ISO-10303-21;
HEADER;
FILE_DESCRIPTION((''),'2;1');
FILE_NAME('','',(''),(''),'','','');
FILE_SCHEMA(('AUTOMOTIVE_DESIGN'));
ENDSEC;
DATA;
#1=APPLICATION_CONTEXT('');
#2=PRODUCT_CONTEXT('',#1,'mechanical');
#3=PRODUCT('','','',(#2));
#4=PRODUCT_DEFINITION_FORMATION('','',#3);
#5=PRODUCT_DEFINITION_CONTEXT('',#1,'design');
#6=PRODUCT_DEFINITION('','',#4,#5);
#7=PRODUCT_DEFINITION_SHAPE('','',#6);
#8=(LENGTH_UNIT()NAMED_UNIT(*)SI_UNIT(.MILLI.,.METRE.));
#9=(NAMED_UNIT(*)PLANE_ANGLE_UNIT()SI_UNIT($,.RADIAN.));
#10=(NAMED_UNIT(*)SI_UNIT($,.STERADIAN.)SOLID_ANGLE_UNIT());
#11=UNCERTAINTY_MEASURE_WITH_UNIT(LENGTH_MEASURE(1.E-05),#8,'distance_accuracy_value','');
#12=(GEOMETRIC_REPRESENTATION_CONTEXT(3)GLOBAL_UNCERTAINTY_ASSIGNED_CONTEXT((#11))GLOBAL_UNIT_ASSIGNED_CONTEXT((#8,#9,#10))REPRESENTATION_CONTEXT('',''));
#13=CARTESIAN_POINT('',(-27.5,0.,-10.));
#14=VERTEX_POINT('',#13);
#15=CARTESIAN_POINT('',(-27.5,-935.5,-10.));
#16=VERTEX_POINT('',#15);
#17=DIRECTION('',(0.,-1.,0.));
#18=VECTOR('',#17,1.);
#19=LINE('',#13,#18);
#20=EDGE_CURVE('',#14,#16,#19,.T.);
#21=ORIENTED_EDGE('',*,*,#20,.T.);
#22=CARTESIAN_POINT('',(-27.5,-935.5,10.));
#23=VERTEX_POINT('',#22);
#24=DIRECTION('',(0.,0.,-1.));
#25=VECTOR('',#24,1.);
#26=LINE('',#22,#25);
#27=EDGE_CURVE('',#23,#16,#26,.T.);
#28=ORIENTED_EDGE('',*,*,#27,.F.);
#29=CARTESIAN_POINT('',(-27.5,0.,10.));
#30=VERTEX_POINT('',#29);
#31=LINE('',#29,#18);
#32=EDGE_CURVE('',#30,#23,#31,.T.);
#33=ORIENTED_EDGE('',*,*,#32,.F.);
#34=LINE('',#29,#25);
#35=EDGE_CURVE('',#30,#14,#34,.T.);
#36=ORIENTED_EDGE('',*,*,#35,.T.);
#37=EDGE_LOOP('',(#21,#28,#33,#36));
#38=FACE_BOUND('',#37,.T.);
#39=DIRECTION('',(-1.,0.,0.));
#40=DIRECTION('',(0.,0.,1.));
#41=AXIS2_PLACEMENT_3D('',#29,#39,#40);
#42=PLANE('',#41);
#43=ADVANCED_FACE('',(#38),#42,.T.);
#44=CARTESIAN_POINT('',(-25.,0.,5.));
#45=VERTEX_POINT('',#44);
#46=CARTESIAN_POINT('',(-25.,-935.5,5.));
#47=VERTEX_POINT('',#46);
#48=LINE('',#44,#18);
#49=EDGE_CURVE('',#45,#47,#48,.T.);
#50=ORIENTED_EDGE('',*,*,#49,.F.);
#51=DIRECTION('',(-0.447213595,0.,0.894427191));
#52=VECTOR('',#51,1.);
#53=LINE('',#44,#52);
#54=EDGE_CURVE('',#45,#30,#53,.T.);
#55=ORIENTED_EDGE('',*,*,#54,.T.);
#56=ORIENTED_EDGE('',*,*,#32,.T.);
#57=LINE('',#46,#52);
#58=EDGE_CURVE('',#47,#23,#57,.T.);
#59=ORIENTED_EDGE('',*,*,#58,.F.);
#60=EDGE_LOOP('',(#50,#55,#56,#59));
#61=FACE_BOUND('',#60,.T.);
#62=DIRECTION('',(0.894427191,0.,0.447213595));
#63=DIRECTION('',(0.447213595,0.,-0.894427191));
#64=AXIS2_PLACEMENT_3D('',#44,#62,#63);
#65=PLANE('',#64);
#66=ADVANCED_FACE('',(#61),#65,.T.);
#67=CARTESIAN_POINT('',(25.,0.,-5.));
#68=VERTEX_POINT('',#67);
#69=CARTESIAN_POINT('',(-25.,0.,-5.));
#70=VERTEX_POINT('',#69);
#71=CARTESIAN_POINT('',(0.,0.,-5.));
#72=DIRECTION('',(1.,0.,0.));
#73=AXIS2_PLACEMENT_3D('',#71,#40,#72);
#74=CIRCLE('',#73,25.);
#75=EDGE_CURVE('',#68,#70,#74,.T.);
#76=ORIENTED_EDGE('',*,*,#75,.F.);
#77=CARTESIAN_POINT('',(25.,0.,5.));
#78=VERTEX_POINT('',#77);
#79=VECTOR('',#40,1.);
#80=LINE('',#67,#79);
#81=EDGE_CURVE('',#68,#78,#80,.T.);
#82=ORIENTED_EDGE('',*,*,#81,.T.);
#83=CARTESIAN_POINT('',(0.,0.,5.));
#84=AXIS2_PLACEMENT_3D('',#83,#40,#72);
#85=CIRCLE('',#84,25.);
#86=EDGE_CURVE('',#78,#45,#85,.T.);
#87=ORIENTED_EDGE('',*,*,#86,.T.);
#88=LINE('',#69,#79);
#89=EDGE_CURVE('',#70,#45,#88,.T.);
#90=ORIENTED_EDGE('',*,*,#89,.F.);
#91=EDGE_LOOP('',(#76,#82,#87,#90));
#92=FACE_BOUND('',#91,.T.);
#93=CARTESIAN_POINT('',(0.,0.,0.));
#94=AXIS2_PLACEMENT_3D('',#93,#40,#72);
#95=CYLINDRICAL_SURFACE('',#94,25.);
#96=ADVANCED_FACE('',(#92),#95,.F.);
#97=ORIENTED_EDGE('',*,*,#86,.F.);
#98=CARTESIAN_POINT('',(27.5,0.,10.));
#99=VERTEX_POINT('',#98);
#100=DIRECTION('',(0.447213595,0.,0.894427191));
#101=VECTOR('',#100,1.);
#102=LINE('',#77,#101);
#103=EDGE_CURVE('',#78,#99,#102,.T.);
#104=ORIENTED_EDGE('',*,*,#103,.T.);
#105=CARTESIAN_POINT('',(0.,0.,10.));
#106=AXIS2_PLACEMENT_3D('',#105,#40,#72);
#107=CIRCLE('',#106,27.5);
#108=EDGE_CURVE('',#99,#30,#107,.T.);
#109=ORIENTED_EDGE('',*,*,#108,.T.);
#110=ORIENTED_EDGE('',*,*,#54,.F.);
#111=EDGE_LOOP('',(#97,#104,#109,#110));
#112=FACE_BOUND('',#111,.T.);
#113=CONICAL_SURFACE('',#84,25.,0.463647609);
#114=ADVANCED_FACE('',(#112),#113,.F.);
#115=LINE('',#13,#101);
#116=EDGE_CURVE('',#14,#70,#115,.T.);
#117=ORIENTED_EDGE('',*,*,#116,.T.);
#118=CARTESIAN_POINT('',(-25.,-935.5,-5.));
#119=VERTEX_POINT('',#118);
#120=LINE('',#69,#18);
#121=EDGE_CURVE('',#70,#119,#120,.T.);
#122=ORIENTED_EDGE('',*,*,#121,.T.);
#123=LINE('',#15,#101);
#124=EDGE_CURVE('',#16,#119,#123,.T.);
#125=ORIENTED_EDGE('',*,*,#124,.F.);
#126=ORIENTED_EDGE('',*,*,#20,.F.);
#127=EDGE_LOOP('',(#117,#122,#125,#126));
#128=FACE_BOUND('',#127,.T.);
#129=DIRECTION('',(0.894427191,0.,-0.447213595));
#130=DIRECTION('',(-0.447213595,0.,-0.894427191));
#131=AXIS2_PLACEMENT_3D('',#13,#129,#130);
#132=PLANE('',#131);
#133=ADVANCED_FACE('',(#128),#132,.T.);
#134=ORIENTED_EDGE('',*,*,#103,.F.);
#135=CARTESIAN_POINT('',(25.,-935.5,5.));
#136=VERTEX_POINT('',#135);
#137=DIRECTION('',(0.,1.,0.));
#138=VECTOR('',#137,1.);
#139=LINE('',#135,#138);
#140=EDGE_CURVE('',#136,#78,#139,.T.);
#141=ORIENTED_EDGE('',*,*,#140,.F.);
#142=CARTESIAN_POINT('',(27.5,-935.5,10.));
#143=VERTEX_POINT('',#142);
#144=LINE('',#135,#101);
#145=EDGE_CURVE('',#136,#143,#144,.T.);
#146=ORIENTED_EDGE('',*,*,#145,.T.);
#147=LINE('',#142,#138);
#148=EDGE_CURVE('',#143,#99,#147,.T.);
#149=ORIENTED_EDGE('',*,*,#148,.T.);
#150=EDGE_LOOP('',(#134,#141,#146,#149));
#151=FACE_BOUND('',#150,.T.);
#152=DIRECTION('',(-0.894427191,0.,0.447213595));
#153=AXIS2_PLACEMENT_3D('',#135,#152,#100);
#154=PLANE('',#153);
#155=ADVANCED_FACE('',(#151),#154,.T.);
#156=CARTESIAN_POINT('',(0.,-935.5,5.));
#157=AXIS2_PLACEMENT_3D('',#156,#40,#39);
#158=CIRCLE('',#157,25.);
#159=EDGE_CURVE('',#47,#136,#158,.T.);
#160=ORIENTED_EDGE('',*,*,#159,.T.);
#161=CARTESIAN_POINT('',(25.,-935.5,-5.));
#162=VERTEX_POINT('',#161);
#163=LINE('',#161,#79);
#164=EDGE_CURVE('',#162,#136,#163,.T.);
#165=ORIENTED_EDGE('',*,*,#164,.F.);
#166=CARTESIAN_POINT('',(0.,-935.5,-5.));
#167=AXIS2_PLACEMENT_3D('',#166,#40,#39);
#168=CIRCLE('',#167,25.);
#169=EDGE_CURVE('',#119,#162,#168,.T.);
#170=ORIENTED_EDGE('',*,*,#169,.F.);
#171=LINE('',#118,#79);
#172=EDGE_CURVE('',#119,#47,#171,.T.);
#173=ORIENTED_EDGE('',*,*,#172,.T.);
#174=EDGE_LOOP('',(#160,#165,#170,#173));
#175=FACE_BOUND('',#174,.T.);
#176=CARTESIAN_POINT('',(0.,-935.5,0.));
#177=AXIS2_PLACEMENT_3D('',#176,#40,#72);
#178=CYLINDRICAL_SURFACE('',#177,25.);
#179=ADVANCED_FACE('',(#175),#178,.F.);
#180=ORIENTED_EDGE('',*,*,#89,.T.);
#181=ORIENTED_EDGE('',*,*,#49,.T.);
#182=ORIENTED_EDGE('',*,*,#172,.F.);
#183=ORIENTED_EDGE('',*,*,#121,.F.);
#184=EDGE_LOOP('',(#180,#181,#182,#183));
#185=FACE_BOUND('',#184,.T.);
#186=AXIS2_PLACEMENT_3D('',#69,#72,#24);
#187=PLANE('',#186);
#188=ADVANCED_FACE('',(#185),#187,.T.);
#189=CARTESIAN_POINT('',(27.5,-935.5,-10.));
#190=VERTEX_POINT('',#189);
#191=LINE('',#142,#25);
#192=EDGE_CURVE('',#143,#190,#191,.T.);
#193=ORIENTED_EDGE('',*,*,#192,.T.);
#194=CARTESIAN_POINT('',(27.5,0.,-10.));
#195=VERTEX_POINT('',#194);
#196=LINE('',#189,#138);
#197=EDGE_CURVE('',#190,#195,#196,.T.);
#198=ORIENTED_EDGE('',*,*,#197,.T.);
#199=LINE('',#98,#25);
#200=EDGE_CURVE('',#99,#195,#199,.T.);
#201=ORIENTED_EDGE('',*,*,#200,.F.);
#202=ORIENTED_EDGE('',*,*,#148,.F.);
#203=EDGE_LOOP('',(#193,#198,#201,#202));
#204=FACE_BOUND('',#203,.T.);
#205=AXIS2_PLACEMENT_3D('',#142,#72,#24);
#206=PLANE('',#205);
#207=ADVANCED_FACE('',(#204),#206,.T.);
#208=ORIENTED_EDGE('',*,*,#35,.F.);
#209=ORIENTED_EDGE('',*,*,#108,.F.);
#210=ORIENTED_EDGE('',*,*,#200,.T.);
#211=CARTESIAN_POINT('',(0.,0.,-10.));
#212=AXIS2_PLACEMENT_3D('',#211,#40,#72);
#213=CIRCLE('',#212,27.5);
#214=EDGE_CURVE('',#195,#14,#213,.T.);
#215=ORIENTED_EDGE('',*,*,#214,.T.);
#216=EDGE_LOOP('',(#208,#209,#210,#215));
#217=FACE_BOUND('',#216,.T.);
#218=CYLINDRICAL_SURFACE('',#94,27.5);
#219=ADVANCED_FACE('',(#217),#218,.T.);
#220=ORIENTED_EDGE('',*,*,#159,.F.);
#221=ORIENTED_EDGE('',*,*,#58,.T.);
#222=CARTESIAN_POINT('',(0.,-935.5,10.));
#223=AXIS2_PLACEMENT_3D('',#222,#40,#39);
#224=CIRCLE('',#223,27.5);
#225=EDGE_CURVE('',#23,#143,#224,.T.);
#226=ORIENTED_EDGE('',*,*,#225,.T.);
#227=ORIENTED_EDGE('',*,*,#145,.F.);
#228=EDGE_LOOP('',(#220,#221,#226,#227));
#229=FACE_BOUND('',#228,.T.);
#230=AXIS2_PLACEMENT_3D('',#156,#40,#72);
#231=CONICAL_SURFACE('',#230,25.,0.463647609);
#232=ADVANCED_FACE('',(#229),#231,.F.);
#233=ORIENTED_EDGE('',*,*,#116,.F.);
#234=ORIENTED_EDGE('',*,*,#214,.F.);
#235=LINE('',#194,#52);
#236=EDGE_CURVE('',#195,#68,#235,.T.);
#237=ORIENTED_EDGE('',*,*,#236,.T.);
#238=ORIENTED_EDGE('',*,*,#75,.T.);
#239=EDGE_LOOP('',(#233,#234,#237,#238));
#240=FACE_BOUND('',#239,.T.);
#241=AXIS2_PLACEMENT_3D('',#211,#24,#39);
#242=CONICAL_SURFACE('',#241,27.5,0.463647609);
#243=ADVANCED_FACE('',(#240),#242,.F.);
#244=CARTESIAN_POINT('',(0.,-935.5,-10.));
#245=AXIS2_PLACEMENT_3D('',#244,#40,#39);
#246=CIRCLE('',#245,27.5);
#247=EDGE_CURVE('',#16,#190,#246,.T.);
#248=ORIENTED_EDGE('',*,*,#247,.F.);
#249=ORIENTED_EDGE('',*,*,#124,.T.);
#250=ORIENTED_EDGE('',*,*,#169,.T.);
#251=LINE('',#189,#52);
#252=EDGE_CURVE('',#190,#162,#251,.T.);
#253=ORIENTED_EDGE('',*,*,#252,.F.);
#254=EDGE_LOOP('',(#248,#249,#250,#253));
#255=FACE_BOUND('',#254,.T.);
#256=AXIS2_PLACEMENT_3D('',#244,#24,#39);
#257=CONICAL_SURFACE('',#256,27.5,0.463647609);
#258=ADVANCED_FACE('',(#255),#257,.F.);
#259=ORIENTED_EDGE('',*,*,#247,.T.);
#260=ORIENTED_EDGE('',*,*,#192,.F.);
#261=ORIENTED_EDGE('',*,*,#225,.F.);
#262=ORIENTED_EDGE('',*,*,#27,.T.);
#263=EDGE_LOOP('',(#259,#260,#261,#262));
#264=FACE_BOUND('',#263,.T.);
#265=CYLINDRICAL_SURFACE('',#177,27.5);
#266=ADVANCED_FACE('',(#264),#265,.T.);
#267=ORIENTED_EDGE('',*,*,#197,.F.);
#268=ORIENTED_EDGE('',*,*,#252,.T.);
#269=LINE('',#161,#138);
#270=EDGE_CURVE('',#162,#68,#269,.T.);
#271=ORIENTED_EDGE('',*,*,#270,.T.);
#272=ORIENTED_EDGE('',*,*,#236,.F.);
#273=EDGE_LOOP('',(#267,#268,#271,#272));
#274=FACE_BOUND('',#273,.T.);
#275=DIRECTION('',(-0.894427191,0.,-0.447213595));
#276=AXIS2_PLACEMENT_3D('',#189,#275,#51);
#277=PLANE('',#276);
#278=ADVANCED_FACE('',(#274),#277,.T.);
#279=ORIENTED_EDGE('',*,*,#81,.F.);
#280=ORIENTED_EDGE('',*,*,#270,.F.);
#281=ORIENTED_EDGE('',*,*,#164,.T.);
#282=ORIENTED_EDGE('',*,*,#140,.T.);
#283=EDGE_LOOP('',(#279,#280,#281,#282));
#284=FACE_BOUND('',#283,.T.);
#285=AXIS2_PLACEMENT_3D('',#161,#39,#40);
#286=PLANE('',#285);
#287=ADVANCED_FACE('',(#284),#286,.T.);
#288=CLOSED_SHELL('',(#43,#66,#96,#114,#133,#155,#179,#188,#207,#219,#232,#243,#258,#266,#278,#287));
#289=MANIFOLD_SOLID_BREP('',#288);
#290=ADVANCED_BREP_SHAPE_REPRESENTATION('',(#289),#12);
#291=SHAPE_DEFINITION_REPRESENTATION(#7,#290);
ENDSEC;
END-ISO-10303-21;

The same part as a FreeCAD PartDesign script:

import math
import FreeCAD as App
import Part
import Sketcher
from FreeCAD import Vector


def add_polygon(sketch, points):
    """Adds a closed chain of lines whose ends are joined by coincident constraints."""
    first, n = sketch.GeometryCount, len(points)
    for a, b in zip(points, points[1:] + points[:1]):
        sketch.addGeometry(Part.LineSegment(App.Vector(*a, 0), App.Vector(*b, 0)), False)
    for i in range(n):
        sketch.addConstraint(Sketcher.Constraint("Coincident", first + i, 2, first + (i + 1) % n, 1))

doc = App.newDocument("Part")
body = doc.addObject("PartDesign::Body", "Body")

# Sketch on XZ plane
sketch1 = doc.addObject("Sketcher::SketchObject", "Sketch")
body.addObject(sketch1)
sketch1.AttachmentSupport = (doc.XZ_Plane, [""])
sketch1.MapMode = "FlatFace"
add_polygon(sketch1, [(25, -5), (25, 5), (28, 10), (28, -10)])  # lines 0-3
sketch1.addConstraint(Sketcher.Constraint("Vertical", 0))
sketch1.addConstraint(Sketcher.Constraint("Vertical", 2))
sketch1.addConstraint(Sketcher.Constraint("Equal", 1, 3))
sketch1.addConstraint(Sketcher.Constraint("DistanceY", 0, 1, 0, 2, 10.0))
sketch1.addConstraint(Sketcher.Constraint("DistanceY", 2, 2, 2, 1, 20.0))
sketch1.addConstraint(Sketcher.Constraint("DistanceX", -1, 1, 0, 2, 25.0))
sketch1.addConstraint(Sketcher.Constraint("DistanceY", -1, 1, 0, 2, 5.0))
sketch1.addConstraint(Sketcher.Constraint("DistanceX", -1, 1, 1, 2, 27.5))

# Sketch on XY plane
sketch2 = doc.addObject("Sketcher::SketchObject", "Sketch001")
body.addObject(sketch2)
sketch2.AttachmentSupport = (doc.XY_Plane, [""])
sketch2.MapMode = "FlatFace"
sketch2.addGeometry(Part.LineSegment(Vector(25, 0, 0), Vector(25, -936, 0)), False)
sketch2.addGeometry(Part.ArcOfCircle(Part.Circle(Vector(0, -936, 0), Vector(0, 0, 1), 25), math.radians(180), math.radians(360)), False)
sketch2.addGeometry(Part.LineSegment(Vector(-25, -936, 0), Vector(-25, 0, 0)), False)
sketch2.addGeometry(Part.ArcOfCircle(Part.Circle(Vector(0, 0, 0), Vector(0, 0, 1), 25), math.radians(0), math.radians(180)), False)
sketch2.addConstraint(Sketcher.Constraint("Tangent", 0, 2, 1, 2))
sketch2.addConstraint(Sketcher.Constraint("Tangent", 1, 1, 2, 1))
sketch2.addConstraint(Sketcher.Constraint("Tangent", 2, 2, 3, 2))
sketch2.addConstraint(Sketcher.Constraint("Tangent", 3, 1, 0, 1))
sketch2.addConstraint(Sketcher.Constraint("Vertical", 0))
sketch2.addConstraint(Sketcher.Constraint("Vertical", 2))
sketch2.addConstraint(Sketcher.Constraint("Coincident", 3, 3, -1, 1))
sketch2.addConstraint(Sketcher.Constraint("Radius", 1, 25.0))
sketch2.addConstraint(Sketcher.Constraint("DistanceY", 0, 2, 0, 1, 935.5))
doc.recompute()

additivepipe = doc.addObject("PartDesign::AdditivePipe", "AdditivePipe")
body.addObject(additivepipe)
additivepipe.Profile = sketch1
additivepipe.Spine = (sketch2, ["Edge1", "Edge2", "Edge3", "Edge4"])

doc.recompute()
